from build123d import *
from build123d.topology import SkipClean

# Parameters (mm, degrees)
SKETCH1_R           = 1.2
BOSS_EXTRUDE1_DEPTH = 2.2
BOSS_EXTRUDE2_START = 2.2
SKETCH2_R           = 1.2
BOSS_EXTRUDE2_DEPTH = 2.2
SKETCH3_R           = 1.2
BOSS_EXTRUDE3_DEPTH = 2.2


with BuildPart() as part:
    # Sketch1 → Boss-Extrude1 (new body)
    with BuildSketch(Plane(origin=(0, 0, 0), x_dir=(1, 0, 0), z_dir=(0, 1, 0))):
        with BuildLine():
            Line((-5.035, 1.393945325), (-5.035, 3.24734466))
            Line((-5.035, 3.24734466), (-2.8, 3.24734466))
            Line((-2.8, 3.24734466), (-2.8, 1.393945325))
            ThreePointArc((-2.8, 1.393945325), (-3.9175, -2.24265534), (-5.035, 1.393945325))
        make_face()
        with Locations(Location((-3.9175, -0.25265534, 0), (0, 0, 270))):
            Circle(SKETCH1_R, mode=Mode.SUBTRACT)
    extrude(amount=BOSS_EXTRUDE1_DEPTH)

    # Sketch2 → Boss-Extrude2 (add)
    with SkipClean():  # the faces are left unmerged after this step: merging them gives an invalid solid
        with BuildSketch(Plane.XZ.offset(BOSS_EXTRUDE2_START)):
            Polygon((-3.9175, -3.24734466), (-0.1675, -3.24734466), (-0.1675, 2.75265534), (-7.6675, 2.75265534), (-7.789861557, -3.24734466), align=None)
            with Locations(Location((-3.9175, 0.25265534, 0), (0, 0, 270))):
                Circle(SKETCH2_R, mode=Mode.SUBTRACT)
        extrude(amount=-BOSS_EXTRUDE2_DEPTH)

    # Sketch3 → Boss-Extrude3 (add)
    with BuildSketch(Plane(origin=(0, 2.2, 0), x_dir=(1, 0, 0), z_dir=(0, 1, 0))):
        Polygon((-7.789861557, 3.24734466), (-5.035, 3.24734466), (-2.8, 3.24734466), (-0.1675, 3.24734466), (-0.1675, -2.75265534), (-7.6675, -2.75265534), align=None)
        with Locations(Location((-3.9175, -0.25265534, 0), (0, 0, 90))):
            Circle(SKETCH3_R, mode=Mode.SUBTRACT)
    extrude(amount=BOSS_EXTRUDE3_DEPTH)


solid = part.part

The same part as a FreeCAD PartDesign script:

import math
import FreeCAD as App
import Part
import Sketcher


def add_polygon(sketch, points):
    """Adds a closed chain of lines whose ends are joined by coincident constraints."""
    first, n = sketch.GeometryCount, len(points)
    for a, b in zip(points, points[1:] + points[:1]):
        sketch.addGeometry(Part.LineSegment(App.Vector(*a, 0), App.Vector(*b, 0)), False)
    for i in range(n):
        sketch.addConstraint(Sketcher.Constraint("Coincident", first + i, 2, first + (i + 1) % n, 1))

doc = App.newDocument("Part")
params = doc.addObject("Spreadsheet::Sheet", "Params")
for row, (alias, value) in enumerate([
    ("sketch1_diameter", "2.4 mm"),
    ("sketch1_radius", "1.99 mm"),
    ("pad1_length", "2.2 mm"),
    ("sketch2_diameter", "2.4 mm"),
    ("sketch2_height", "6 mm"),
    ("sketch2_width", "7.5 mm"),
    ("pad2_length", "2.2 mm"),
    ("sketch3_diameter", "2.4 mm"),
    ("sketch3_height", "6 mm"),
    ("sketch3_width", "7.5 mm"),
    ("pad3_length", "2.2 mm"),
], start=1):
    params.set(f"A{row}", alias)
    params.set(f"B{row}", "=" + value)
    params.setAlias(f"B{row}", alias)

body = doc.addObject("PartDesign::Body", "Body")

# Sketch on XZ plane
sketch1 = body.newObject("Sketcher::SketchObject", "Sketch")
sketch1.AttachmentSupport = (doc.getObject("XZ_Plane"), [""])
sketch1.MapMode = "FlatFace"
sketch1.addGeometry([
    Part.LineSegment(App.Vector(-5, -3.2, 0), App.Vector(-5, -1.4, 0)),  # 0
    Part.ArcOfCircle(Part.Circle(App.Vector(-3.9, 0.3, 0), App.Vector(0, 0, 1), 2), math.radians(-56), math.radians(236)),  # 1
    Part.LineSegment(App.Vector(-2.8, -1.4, 0), App.Vector(-2.8, -3.2, 0)),  # 2
    Part.LineSegment(App.Vector(-2.8, -3.2, 0), App.Vector(-5, -3.2, 0)),  # 3
    Part.Circle(App.Vector(-3.9, 0.3, 0), App.Vector(0, 0, 1), 1.2),  # 4
], False)
sketch1.addConstraint([
    Sketcher.Constraint("Coincident", 0, 2, 1, 2),
    Sketcher.Constraint("Coincident", 1, 1, 2, 1),
    Sketcher.Constraint("Coincident", 2, 2, 3, 1),
    Sketcher.Constraint("Coincident", 3, 2, 0, 1),
    Sketcher.Constraint("Vertical", 0),
    Sketcher.Constraint("Vertical", 2),
    Sketcher.Constraint("Horizontal", 3),
    Sketcher.Constraint("Coincident", 4, 3, 1, 3),
    Sketcher.Constraint("Horizontal", 0, 2, 1, 1),
    Sketcher.Constraint("Diameter", 4, 2.4),
    Sketcher.Constraint("Radius", 1, 1.99),
    Sketcher.Constraint("DistanceX", 1, 1, -1, 1, 2.8),
    Sketcher.Constraint("DistanceY", 2, 2, 1, 3, 3.5),
    Sketcher.Constraint("DistanceX", 3, 2, 3, 1, 2.235),
    Sketcher.Constraint("DistanceY", -1, 1, 1, 3, 0.252655),
])
sketch1.setExpression("Constraints[9]", "Params.sketch1_diameter")
sketch1.setExpression("Constraints[10]", "Params.sketch1_radius")
pad1 = body.newObject("PartDesign::Pad", "Pad")
pad1.Profile = sketch1
pad1.setExpression("Length", "Params.pad1_length")
pad1.Reversed = True

# Sketch on XZ plane
sketch2 = body.newObject("Sketcher::SketchObject", "Sketch001")
sketch2.AttachmentSupport = (doc.getObject("XZ_Plane"), [""])
sketch2.MapMode = "FlatFace"
sketch2.AttachmentOffset = App.Placement(App.Vector(0, 0, 2.2), App.Rotation())
add_polygon(sketch2, [(-0.2, -3.2), (-0.2, 2.8), (-7.7, 2.8), (-7.8, -3.2)])  # lines 0-3
sketch2.addGeometry(Part.Circle(App.Vector(-3.9, 0.3, 0), App.Vector(0, 0, 1), 1.2), False)  # 4
sketch2.addConstraint([
    Sketcher.Constraint("Vertical", 0),
    Sketcher.Constraint("Horizontal", 1),
    Sketcher.Constraint("Horizontal", 3),
    Sketcher.Constraint("Diameter", 4, 2.4),
    Sketcher.Constraint("DistanceY", 0, 1, 0, 2, 6.0),
    Sketcher.Constraint("DistanceX", 1, 2, 1, 1, 7.5),
    Sketcher.Constraint("DistanceY", 4, 3, 0, 2, 2.5),
    Sketcher.Constraint("DistanceX", 4, 3, 0, 2, 3.75),
    Sketcher.Constraint("DistanceX", 3, 1, 3, 2, 7.622362),
    Sketcher.Constraint("DistanceX", 4, 3, -1, 1, 3.9175),
    Sketcher.Constraint("DistanceY", -1, 1, 4, 3, 0.252655),
])
sketch2.setExpression("Constraints[7]", "Params.sketch2_diameter")
sketch2.setExpression("Constraints[8]", "Params.sketch2_height")
sketch2.setExpression("Constraints[9]", "Params.sketch2_width")
pad2 = body.newObject("PartDesign::Pad", "Pad001")
pad2.Profile = sketch2
pad2.setExpression("Length", "Params.pad2_length")
pad2.Reversed = True

# Sketch on XZ plane
sketch3 = body.newObject("Sketcher::SketchObject", "Sketch002")
sketch3.AttachmentSupport = (doc.getObject("XZ_Plane"), [""])
sketch3.MapMode = "FlatFace"
sketch3.AttachmentOffset = App.Placement(App.Vector(0, 0, -2.2), App.Rotation())
add_polygon(sketch3, [(-0.2, -3.2), (-7.8, -3.2), (-7.7, 2.8), (-0.2, 2.8)])  # lines 0-3
sketch3.addGeometry(Part.Circle(App.Vector(-3.9, 0.3, 0), App.Vector(0, 0, 1), 1.2), False)  # 4
sketch3.addConstraint([
    Sketcher.Constraint("Horizontal", 0),
    Sketcher.Constraint("Horizontal", 2),
    Sketcher.Constraint("Vertical", 3),
    Sketcher.Constraint("Diameter", 4, 2.4),
    Sketcher.Constraint("DistanceY", 3, 2, 3, 1, 6.0),
    Sketcher.Constraint("DistanceX", 2, 1, 2, 2, 7.5),
    Sketcher.Constraint("DistanceY", 0, 2, 4, 3, 3.5),
    Sketcher.Constraint("DistanceX", 1, 2, 4, 3, 3.75),
    Sketcher.Constraint("DistanceX", 0, 2, 0, 1, 7.622362),
    Sketcher.Constraint("DistanceX", 4, 3, -1, 1, 3.9175),
    Sketcher.Constraint("DistanceY", -1, 1, 4, 3, 0.252655),
])
sketch3.setExpression("Constraints[7]", "Params.sketch3_diameter")
sketch3.setExpression("Constraints[8]", "Params.sketch3_height")
sketch3.setExpression("Constraints[9]", "Params.sketch3_width")
pad3 = body.newObject("PartDesign::Pad", "Pad002")
pad3.Profile = sketch3
pad3.setExpression("Length", "Params.pad3_length")
pad3.Reversed = True

doc.recompute()
